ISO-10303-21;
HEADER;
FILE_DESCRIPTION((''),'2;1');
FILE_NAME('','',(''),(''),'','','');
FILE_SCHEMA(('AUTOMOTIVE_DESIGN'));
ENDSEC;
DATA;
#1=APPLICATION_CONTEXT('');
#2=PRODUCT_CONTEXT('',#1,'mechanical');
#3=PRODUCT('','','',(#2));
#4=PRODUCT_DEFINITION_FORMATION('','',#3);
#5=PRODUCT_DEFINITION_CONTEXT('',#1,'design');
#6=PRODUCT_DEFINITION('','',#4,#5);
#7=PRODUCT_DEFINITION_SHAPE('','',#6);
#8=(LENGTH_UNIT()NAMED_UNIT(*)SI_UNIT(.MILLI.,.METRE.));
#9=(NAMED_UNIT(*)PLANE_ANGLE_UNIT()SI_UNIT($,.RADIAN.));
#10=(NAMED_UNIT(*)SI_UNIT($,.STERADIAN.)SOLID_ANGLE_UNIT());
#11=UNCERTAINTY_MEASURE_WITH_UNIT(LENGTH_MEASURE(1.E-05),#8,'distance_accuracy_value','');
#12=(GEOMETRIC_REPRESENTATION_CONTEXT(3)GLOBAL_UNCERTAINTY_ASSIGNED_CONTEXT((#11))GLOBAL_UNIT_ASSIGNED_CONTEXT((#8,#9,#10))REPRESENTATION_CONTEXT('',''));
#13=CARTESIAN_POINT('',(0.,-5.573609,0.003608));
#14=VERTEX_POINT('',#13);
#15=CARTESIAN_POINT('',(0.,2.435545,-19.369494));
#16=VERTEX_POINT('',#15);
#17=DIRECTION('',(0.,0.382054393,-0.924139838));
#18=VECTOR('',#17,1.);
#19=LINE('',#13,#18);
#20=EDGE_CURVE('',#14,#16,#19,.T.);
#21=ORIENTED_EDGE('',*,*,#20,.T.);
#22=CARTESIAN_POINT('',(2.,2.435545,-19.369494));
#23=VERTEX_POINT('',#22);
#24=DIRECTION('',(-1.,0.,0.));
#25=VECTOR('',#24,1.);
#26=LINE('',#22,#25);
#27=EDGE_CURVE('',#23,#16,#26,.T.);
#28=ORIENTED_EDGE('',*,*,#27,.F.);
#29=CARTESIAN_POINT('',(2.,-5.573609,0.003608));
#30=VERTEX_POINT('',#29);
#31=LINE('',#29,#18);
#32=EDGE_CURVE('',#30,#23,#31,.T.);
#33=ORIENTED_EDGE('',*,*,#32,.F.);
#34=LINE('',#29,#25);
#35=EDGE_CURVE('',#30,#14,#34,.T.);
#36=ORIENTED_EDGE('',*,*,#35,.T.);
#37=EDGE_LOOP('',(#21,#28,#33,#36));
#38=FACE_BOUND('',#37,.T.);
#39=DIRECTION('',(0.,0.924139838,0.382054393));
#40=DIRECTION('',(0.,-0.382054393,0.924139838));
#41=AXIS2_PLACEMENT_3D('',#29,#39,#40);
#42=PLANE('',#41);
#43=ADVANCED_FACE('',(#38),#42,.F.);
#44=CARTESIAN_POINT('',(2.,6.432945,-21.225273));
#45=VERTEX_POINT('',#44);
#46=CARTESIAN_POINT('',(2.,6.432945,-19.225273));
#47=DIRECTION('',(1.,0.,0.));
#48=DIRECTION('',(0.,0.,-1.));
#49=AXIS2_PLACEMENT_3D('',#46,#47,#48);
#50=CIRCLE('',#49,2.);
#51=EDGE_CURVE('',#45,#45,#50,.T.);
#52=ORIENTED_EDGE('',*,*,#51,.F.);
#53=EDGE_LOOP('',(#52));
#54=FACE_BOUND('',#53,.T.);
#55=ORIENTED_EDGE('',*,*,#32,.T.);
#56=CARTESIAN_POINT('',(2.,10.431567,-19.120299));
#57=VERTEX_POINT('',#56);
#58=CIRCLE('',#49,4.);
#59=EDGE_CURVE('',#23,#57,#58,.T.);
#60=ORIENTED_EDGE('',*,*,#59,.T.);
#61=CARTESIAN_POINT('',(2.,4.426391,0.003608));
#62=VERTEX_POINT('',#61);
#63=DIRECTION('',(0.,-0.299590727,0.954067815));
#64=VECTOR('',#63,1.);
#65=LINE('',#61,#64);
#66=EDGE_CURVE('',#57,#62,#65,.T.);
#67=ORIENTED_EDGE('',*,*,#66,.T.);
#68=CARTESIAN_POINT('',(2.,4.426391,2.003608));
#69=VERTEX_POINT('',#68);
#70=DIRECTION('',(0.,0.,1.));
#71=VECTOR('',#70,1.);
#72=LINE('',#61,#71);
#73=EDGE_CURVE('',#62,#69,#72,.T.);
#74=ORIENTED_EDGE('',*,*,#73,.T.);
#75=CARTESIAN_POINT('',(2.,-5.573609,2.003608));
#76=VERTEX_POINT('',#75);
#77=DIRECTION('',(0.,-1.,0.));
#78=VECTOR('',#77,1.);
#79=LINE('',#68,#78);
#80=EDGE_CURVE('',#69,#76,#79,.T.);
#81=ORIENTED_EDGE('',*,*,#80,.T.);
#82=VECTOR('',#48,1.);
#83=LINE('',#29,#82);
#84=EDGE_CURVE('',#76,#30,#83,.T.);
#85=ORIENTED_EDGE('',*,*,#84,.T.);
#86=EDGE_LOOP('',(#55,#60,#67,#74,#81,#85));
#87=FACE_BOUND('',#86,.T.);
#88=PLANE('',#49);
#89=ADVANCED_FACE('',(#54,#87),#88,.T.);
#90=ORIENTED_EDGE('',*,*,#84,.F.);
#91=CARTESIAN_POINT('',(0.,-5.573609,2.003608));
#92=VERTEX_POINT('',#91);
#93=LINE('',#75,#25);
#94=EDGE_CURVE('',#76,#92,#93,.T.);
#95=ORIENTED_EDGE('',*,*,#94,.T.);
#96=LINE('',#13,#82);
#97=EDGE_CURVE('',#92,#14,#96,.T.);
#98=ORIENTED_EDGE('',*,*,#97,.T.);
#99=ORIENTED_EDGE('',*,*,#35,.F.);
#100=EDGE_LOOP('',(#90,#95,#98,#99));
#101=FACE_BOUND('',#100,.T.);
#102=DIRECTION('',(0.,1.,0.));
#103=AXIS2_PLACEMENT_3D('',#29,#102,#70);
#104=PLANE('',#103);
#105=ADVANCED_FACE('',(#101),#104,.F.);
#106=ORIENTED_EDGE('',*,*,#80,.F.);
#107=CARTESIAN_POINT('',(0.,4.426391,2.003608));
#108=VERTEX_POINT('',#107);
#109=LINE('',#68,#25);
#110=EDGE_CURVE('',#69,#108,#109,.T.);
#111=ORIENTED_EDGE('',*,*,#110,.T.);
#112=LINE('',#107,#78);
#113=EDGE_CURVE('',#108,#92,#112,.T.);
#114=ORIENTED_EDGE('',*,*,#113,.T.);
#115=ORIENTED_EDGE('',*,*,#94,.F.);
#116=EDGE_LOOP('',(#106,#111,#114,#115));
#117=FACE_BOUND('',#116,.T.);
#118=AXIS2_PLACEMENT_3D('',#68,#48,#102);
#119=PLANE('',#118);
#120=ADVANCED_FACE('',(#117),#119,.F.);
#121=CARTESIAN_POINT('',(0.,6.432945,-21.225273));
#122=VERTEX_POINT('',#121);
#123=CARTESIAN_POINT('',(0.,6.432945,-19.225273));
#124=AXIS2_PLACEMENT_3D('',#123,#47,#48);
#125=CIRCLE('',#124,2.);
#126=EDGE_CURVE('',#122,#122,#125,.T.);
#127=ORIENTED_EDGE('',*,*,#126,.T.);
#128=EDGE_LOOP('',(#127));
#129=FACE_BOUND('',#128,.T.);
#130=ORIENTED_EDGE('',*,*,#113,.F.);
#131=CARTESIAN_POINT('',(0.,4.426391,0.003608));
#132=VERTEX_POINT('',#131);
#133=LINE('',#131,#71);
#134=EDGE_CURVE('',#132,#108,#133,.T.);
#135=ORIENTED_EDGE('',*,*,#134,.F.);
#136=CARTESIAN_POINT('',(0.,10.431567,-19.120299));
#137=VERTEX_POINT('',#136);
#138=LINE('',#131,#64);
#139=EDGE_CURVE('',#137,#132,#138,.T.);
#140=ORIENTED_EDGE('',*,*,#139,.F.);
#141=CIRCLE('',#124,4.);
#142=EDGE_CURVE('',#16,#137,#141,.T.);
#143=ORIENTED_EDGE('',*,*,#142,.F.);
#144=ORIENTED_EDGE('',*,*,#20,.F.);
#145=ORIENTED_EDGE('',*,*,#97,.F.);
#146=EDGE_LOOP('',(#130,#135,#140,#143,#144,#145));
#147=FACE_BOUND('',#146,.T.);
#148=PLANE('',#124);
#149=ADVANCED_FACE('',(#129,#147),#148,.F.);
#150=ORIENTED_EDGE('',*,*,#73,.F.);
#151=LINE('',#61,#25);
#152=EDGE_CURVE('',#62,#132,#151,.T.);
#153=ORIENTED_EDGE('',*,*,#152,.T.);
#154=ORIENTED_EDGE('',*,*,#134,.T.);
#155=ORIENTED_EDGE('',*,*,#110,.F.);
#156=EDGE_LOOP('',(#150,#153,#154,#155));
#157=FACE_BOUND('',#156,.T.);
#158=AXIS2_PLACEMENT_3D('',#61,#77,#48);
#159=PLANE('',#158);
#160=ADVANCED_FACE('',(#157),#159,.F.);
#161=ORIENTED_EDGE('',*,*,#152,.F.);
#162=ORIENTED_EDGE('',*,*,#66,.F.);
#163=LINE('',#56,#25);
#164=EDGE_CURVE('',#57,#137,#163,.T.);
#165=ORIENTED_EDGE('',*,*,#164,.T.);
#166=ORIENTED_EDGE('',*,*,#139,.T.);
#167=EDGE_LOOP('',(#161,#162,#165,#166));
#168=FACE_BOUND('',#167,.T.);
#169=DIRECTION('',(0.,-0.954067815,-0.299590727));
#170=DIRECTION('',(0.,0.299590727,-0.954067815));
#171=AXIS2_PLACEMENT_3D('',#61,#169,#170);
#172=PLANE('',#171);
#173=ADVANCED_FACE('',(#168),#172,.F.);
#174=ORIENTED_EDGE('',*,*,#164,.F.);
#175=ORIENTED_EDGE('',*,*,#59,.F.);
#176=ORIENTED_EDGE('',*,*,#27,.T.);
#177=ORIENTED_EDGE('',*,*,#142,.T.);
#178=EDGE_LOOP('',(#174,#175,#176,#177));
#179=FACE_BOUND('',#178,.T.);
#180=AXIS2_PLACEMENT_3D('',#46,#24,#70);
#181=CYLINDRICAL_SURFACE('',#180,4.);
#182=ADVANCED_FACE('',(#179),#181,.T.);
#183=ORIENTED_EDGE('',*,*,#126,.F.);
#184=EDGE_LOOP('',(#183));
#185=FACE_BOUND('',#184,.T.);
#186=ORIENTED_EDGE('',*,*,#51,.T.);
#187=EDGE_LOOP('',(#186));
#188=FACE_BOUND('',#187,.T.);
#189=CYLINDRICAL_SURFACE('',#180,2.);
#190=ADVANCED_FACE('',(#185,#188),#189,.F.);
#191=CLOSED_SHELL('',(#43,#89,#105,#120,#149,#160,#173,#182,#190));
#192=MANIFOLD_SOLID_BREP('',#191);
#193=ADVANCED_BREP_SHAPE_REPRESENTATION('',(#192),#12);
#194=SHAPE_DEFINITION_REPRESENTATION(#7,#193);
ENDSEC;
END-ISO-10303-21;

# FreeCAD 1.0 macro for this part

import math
import FreeCAD as App
import Part
import Sketcher
from FreeCAD import Vector
Q = App.Units.Quantity

doc = App.newDocument("Part")
body = doc.addObject("PartDesign::Body", "Body")

# Sketch on YZ plane
sketch1 = body.newObject("Sketcher::SketchObject", "Sketch")
sketch1.AttachmentSupport = (doc.getObject("YZ_Plane"), [""])
sketch1.MapMode = "FlatFace"
sketch1.addGeometry([
    Part.LineSegment(Vector(10.4, -19.1, 0), Vector(4.4, 0, 0)),  # 0
    Part.LineSegment(Vector(4.4, 0, 0), Vector(4.4, 2, 0)),  # 1
    Part.LineSegment(Vector(4.4, 2, 0), Vector(-5.6, 2, 0)),  # 2
    Part.LineSegment(Vector(-5.6, 2, 0), Vector(-5.6, 0, 0)),  # 3
    Part.LineSegment(Vector(-5.6, 0, 0), Vector(2.4, -19.4, 0)),  # 4
    Part.ArcOfCircle(Part.Circle(Vector(6.4, -19.2, 0), Vector(0, 0, 1), 4), math.radians(-178), math.radians(2)),  # 5
    Part.Circle(Vector(6.4, -19.2, 0), Vector(0, 0, 1), 2),  # 6
], False)
sketch1.addConstraint([
    Sketcher.Constraint("Coincident", 0, 2, 1, 1),
    Sketcher.Constraint("Coincident", 1, 2, 2, 1),
    Sketcher.Constraint("Coincident", 2, 2, 3, 1),
    Sketcher.Constraint("Coincident", 3, 2, 4, 1),
    Sketcher.Constraint("Coincident", 4, 2, 5, 1),
    Sketcher.Constraint("Coincident", 5, 2, 0, 1),
    Sketcher.Constraint("Vertical", 1),
    Sketcher.Constraint("Horizontal", 2),
    Sketcher.Constraint("Vertical", 3),
    Sketcher.Constraint("Coincident", 6, 3, 5, 3),
    Sketcher.Constraint("Horizontal", 0, 2, 3, 2),
    Sketcher.Constraint("Diameter", 6, Q("4 mm")),
    Sketcher.Constraint("Radius", 5, Q("4 mm")),
    Sketcher.Constraint("DistanceX", 2, 2, 2, 1, Q("10 mm")),
    Sketcher.Constraint("DistanceY", 1, 1, 1, 2, Q("2 mm")),
    Sketcher.Constraint("Distance", 0, Q("20.044599 mm")),
    Sketcher.Constraint("DistanceY", 5, 2, -1, 1, Q("19.120299 mm")),
    Sketcher.Constraint("DistanceX", 4, 2, 5, 3, Q("3.997399 mm")),
    Sketcher.Constraint("Distance", 4, Q("20.963388 mm")),
    Sketcher.Constraint("DistanceX", -1, 1, 0, 2, Q("4.426391 mm")),
    Sketcher.Constraint("DistanceY", -1, 1, 0, 2, Q("0.003608 mm")),
])
pad1 = body.newObject("PartDesign::Pad", "Pad")
pad1.Profile = sketch1
pad1.Length = 2

doc.recompute()
